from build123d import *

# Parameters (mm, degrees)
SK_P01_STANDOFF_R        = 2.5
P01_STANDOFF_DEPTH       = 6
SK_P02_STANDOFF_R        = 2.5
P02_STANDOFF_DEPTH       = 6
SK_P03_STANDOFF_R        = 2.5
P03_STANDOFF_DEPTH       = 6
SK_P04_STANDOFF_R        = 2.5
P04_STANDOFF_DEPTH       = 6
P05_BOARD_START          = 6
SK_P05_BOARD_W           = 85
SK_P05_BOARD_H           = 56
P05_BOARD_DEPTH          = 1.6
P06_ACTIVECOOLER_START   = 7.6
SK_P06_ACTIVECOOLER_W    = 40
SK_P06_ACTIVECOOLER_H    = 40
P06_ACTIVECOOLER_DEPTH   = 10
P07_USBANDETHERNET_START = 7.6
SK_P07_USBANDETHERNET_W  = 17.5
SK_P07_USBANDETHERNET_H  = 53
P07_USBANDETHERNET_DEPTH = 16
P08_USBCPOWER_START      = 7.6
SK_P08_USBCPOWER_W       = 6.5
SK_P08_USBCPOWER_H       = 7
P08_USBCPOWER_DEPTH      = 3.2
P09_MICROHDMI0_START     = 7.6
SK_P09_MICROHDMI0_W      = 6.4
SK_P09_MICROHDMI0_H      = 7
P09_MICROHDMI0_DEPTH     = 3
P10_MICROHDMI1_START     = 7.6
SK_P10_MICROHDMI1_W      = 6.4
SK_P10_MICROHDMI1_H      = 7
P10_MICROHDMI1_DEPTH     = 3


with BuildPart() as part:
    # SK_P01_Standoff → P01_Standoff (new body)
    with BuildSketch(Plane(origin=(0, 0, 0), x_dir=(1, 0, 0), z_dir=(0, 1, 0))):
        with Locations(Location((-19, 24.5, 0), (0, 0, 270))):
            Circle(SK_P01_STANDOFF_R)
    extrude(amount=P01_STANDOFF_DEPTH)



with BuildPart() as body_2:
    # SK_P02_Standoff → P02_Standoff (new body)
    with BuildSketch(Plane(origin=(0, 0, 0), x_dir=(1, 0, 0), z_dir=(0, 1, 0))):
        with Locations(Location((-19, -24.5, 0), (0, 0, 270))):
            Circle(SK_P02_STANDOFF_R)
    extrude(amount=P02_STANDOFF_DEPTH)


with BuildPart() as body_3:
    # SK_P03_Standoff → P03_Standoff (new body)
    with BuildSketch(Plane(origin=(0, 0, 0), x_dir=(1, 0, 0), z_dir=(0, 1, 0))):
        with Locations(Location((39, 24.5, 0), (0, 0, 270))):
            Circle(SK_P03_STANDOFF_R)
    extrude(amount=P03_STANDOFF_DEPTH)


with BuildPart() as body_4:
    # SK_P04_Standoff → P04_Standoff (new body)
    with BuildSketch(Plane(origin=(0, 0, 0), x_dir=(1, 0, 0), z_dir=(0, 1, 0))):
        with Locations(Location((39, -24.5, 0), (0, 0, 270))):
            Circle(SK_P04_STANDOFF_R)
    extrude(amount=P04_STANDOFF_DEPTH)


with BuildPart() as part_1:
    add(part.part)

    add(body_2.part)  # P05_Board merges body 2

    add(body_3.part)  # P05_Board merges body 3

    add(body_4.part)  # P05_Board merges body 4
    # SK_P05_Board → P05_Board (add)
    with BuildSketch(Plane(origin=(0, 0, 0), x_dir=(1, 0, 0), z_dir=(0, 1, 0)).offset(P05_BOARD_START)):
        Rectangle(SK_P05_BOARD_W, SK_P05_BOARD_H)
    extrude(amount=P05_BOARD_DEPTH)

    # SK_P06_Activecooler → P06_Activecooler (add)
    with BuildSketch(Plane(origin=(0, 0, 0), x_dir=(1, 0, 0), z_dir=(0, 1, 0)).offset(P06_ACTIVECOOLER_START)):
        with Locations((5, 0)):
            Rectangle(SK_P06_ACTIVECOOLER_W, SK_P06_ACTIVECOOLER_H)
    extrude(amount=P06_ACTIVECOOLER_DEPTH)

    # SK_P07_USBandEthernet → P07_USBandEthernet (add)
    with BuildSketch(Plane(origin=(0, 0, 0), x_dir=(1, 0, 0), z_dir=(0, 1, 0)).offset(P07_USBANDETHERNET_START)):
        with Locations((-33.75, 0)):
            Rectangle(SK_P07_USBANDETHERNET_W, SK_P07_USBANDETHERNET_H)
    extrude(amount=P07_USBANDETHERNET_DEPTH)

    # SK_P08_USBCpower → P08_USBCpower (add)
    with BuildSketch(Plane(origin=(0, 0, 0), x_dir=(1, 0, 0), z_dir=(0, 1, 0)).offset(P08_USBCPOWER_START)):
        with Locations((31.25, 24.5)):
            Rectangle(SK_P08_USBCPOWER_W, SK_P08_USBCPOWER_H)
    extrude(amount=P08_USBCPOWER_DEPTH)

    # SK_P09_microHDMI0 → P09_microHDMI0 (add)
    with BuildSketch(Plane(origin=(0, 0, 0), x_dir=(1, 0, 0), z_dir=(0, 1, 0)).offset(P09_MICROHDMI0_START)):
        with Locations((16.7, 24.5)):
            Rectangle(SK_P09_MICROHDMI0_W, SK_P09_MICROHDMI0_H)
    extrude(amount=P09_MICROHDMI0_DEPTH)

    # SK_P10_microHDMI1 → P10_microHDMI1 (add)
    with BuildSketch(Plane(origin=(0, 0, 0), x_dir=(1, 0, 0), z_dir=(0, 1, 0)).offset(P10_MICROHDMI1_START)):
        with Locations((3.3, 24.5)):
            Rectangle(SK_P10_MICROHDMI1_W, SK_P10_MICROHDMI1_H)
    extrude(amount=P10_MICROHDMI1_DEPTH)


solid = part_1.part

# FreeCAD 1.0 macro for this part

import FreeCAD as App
import Part
import Sketcher
from FreeCAD import Vector


def add_polygon(sketch, points):
    """Adds a closed chain of lines whose ends are joined by coincident constraints."""
    first, n = sketch.GeometryCount, len(points)
    for a, b in zip(points, points[1:] + points[:1]):
        sketch.addGeometry(Part.LineSegment(App.Vector(*a, 0), App.Vector(*b, 0)), False)
    for i in range(n):
        sketch.addConstraint(Sketcher.Constraint("Coincident", first + i, 2, first + (i + 1) % n, 1))

doc = App.newDocument("Part")
body = doc.addObject("PartDesign::Body", "Body")

sketch1 = body.newObject("Sketcher::SketchObject", "Sketch")
sketch1.AttachmentSupport = (doc.getObject("XZ_Plane"), [""])
sketch1.MapMode = "FlatFace"
sketch1.addGeometry(Part.Circle(Vector(-19, -24.5, 0), Vector(0, 0, 1), 2.5), False)
sketch1.addConstraint([
    Sketcher.Constraint("Diameter", 0, 5.0),
    Sketcher.Constraint("DistanceX", 0, 3, -1, 1, 19.0),
    Sketcher.Constraint("DistanceY", 0, 3, -1, 1, 24.5),
])
pad1 = body.newObject("PartDesign::Pad", "Pad")
pad1.Profile = sketch1
pad1.Length = 6
pad1.Reversed = True
body2 = doc.addObject("PartDesign::Body", "Body001")

sketch2 = body2.newObject("Sketcher::SketchObject", "Sketch001")
sketch2.AttachmentSupport = (doc.getObject("XZ_Plane001"), [""])
sketch2.MapMode = "FlatFace"
sketch2.addGeometry(Part.Circle(Vector(-19, 24.5, 0), Vector(0, 0, 1), 2.5), False)
sketch2.addConstraint([
    Sketcher.Constraint("Diameter", 0, 5.0),
    Sketcher.Constraint("DistanceX", 0, 3, -1, 1, 19.0),
    Sketcher.Constraint("DistanceY", -1, 1, 0, 3, 24.5),
])
pad2 = body2.newObject("PartDesign::Pad", "Pad001")
pad2.Profile = sketch2
pad2.Length = 6
pad2.Reversed = True
body3 = doc.addObject("PartDesign::Body", "Body002")

sketch3 = body3.newObject("Sketcher::SketchObject", "Sketch002")
sketch3.AttachmentSupport = (doc.getObject("XZ_Plane002"), [""])
sketch3.MapMode = "FlatFace"
sketch3.addGeometry(Part.Circle(Vector(39, -24.5, 0), Vector(0, 0, 1), 2.5), False)
sketch3.addConstraint([
    Sketcher.Constraint("Diameter", 0, 5.0),
    Sketcher.Constraint("DistanceX", -1, 1, 0, 3, 39.0),
    Sketcher.Constraint("DistanceY", 0, 3, -1, 1, 24.5),
])
pad3 = body3.newObject("PartDesign::Pad", "Pad002")
pad3.Profile = sketch3
pad3.Length = 6
pad3.Reversed = True
body4 = doc.addObject("PartDesign::Body", "Body003")

sketch4 = body4.newObject("Sketcher::SketchObject", "Sketch003")
sketch4.AttachmentSupport = (doc.getObject("XZ_Plane003"), [""])
sketch4.MapMode = "FlatFace"
sketch4.addGeometry(Part.Circle(Vector(39, 24.5, 0), Vector(0, 0, 1), 2.5), False)
sketch4.addConstraint([
    Sketcher.Constraint("Diameter", 0, 5.0),
    Sketcher.Constraint("DistanceX", -1, 1, 0, 3, 39.0),
    Sketcher.Constraint("DistanceY", -1, 1, 0, 3, 24.5),
])
pad4 = body4.newObject("PartDesign::Pad", "Pad003")
pad4.Profile = sketch4
pad4.Length = 6
pad4.Reversed = True
body.AllowCompound = True
doc.recompute()

boolean = body.newObject("PartDesign::Boolean", "Boolean")
boolean.Type = "Fuse"
boolean.addObjects([body2])
doc.recompute()

boolean2 = body.newObject("PartDesign::Boolean", "Boolean001")
boolean2.Type = "Fuse"
boolean2.addObjects([body3])
doc.recompute()

boolean3 = body.newObject("PartDesign::Boolean", "Boolean002")
boolean3.Type = "Fuse"
boolean3.addObjects([body4])

sketch5 = body.newObject("Sketcher::SketchObject", "Sketch004")
sketch5.AttachmentSupport = (doc.getObject("XZ_Plane"), [""])
sketch5.MapMode = "FlatFace"
sketch5.AttachmentOffset = App.Placement(Vector(0, 0, -6), App.Rotation())
add_polygon(sketch5, [(-42.5, -28), (-42.5, 28), (42.5, 28), (42.5, -28)])
sketch5.addConstraint([
    Sketcher.Constraint("Vertical", 0),
    Sketcher.Constraint("Horizontal", 1),
    Sketcher.Constraint("Vertical", 2),
    Sketcher.Constraint("Horizontal", 3),
    Sketcher.Constraint("Symmetric", 0, 2, 2, 2, -1, 1),
    Sketcher.Constraint("DistanceX", 1, 1, 1, 2, 85.0),
    Sketcher.Constraint("DistanceY", 0, 1, 0, 2, 56.0),
])
pad5 = body.newObject("PartDesign::Pad", "Pad004")
pad5.Profile = sketch5
pad5.Length = 1.6
pad5.Reversed = True

sketch6 = body.newObject("Sketcher::SketchObject", "Sketch005")
sketch6.AttachmentSupport = (doc.getObject("XZ_Plane"), [""])
sketch6.MapMode = "FlatFace"
sketch6.AttachmentOffset = App.Placement(Vector(0, 0, -7.6), App.Rotation())
add_polygon(sketch6, [(-15, -20), (-15, 20), (25, 20), (25, -20)])
sketch6.addConstraint([
    Sketcher.Constraint("Vertical", 0),
    Sketcher.Constraint("Horizontal", 1),
    Sketcher.Constraint("Vertical", 2),
    Sketcher.Constraint("Horizontal", 3),
    Sketcher.Constraint("Equal", 3, 0),
    Sketcher.Constraint("DistanceX", 1, 1, 1, 2, 40.0),
    Sketcher.Constraint("DistanceX", 0, 2, -1, 1, 15.0),
    Sketcher.Constraint("DistanceY", -1, 1, 0, 2, 20.0),
])
pad6 = body.newObject("PartDesign::Pad", "Pad005")
pad6.Profile = sketch6
pad6.Length = 10
pad6.Reversed = True

sketch7 = body.newObject("Sketcher::SketchObject", "Sketch006")
sketch7.AttachmentSupport = (doc.getObject("XZ_Plane"), [""])
sketch7.MapMode = "FlatFace"
sketch7.AttachmentOffset = App.Placement(Vector(0, 0, -7.6), App.Rotation())
add_polygon(sketch7, [(-42.5, -26.5), (-42.5, 26.5), (-25, 26.5), (-25, -26.5)])
sketch7.addConstraint([
    Sketcher.Constraint("Vertical", 0),
    Sketcher.Constraint("Horizontal", 1),
    Sketcher.Constraint("Vertical", 2),
    Sketcher.Constraint("Horizontal", 3),
    Sketcher.Constraint("DistanceY", 0, 1, 0, 2, 53.0),
    Sketcher.Constraint("DistanceX", 1, 1, 1, 2, 17.5),
    Sketcher.Constraint("DistanceX", 1, 2, -1, 1, 25.0),
    Sketcher.Constraint("DistanceY", -1, 1, 0, 2, 26.5),
])
pad7 = body.newObject("PartDesign::Pad", "Pad006")
pad7.Profile = sketch7
pad7.Length = 16
pad7.Reversed = True

sketch8 = body.newObject("Sketcher::SketchObject", "Sketch007")
sketch8.AttachmentSupport = (doc.getObject("XZ_Plane"), [""])
sketch8.MapMode = "FlatFace"
sketch8.AttachmentOffset = App.Placement(Vector(0, 0, -7.6), App.Rotation())
add_polygon(sketch8, [(28, -28), (28, -21), (34.5, -21), (34.5, -28)])
sketch8.addConstraint([
    Sketcher.Constraint("Vertical", 0),
    Sketcher.Constraint("Horizontal", 1),
    Sketcher.Constraint("Vertical", 2),
    Sketcher.Constraint("Horizontal", 3),
    Sketcher.Constraint("DistanceY", 0, 1, 0, 2, 7.0),
    Sketcher.Constraint("DistanceX", 1, 1, 1, 2, 6.5),
    Sketcher.Constraint("DistanceX", -1, 1, 0, 2, 28.0),
    Sketcher.Constraint("DistanceY", 0, 2, -1, 1, 21.0),
])
pad8 = body.newObject("PartDesign::Pad", "Pad007")
pad8.Profile = sketch8
pad8.Length = 3.2
pad8.Reversed = True

sketch9 = body.newObject("Sketcher::SketchObject", "Sketch008")
sketch9.AttachmentSupport = (doc.getObject("XZ_Plane"), [""])
sketch9.MapMode = "FlatFace"
sketch9.AttachmentOffset = App.Placement(Vector(0, 0, -7.6), App.Rotation())
add_polygon(sketch9, [(13.5, -28), (13.5, -21), (19.9, -21), (19.9, -28)])
sketch9.addConstraint([
    Sketcher.Constraint("Vertical", 0),
    Sketcher.Constraint("Horizontal", 1),
    Sketcher.Constraint("Vertical", 2),
    Sketcher.Constraint("Horizontal", 3),
    Sketcher.Constraint("DistanceY", 0, 1, 0, 2, 7.0),
    Sketcher.Constraint("DistanceX", 1, 1, 1, 2, 6.4),
    Sketcher.Constraint("DistanceY", 0, 2, -1, 1, 21.0),
    Sketcher.Constraint("DistanceX", -1, 1, 0, 2, 13.5),
])
pad9 = body.newObject("PartDesign::Pad", "Pad008")
pad9.Profile = sketch9
pad9.Length = 3
pad9.Reversed = True

sketch10 = body.newObject("Sketcher::SketchObject", "Sketch009")
sketch10.AttachmentSupport = (doc.getObject("XZ_Plane"), [""])
sketch10.MapMode = "FlatFace"
sketch10.AttachmentOffset = App.Placement(Vector(0, 0, -7.6), App.Rotation())
add_polygon(sketch10, [(0.1, -28), (0.1, -21), (6.5, -21), (6.5, -28)])
sketch10.addConstraint([
    Sketcher.Constraint("Vertical", 0),
    Sketcher.Constraint("Horizontal", 1),
    Sketcher.Constraint("Vertical", 2),
    Sketcher.Constraint("Horizontal", 3),
    Sketcher.Constraint("DistanceY", 0, 1, 0, 2, 7.0),
    Sketcher.Constraint("DistanceX", 1, 1, 1, 2, 6.4),
    Sketcher.Constraint("DistanceY", 0, 2, -1, 1, 21.0),
    Sketcher.Constraint("DistanceX", -1, 1, 0, 2, 0.1),
])
pad10 = body.newObject("PartDesign::Pad", "Pad009")
pad10.Profile = sketch10
pad10.Length = 3
pad10.Reversed = True

doc.recompute()
